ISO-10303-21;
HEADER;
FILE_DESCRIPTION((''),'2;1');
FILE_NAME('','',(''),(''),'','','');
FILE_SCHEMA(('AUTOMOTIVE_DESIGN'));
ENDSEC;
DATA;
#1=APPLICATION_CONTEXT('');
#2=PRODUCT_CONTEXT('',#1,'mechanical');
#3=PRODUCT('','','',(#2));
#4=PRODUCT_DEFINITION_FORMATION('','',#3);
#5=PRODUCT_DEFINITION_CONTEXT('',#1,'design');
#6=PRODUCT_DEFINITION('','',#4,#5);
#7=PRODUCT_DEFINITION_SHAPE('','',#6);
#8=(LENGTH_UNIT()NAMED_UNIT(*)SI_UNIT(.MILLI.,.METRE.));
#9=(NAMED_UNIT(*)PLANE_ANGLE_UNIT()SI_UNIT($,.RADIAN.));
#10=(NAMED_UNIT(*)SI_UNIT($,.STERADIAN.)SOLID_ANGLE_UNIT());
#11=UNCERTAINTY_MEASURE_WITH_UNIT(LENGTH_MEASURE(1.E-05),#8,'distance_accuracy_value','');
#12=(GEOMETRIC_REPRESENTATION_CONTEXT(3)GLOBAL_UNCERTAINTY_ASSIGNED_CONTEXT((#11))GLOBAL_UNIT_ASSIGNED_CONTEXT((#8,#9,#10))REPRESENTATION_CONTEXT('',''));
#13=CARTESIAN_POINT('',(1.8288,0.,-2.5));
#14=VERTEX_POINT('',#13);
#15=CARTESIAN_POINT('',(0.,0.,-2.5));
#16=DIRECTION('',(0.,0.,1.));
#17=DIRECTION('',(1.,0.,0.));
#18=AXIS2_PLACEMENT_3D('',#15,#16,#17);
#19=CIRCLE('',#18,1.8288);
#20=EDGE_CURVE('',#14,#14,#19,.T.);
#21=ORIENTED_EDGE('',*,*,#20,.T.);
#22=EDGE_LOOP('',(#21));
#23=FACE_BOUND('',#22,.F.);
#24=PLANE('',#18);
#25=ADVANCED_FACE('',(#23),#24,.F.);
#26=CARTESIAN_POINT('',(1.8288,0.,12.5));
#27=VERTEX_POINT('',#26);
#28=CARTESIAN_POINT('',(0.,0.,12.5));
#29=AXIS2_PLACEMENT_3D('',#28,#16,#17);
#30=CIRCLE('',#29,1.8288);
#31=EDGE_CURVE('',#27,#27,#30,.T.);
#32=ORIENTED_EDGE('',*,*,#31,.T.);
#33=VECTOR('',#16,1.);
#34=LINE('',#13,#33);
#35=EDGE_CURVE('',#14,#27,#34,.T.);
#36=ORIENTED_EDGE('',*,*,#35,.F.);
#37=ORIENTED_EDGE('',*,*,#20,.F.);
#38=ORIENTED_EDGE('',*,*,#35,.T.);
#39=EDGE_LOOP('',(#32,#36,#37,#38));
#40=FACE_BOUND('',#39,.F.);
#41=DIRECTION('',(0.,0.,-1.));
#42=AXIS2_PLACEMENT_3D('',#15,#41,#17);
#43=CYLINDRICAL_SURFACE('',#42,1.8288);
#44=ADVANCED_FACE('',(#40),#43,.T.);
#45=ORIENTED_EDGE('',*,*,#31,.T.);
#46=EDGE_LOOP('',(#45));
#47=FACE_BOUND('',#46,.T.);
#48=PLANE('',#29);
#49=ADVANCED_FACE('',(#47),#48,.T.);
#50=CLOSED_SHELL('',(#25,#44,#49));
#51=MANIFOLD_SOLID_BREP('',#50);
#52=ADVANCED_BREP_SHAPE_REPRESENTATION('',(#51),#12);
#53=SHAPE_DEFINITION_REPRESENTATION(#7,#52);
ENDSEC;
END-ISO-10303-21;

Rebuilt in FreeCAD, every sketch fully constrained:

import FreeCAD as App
import Part
import Sketcher
Q = App.Units.Quantity

doc = App.newDocument("Part")
body = doc.addObject("PartDesign::Body", "Body")

# Sketch on XY plane
sketch1 = body.newObject("Sketcher::SketchObject", "Sketch")
sketch1.AttachmentSupport = (doc.getObject("XY_Plane"), [""])
sketch1.MapMode = "FlatFace"
sketch1.AttachmentOffset = App.Placement(App.Vector(0, 0, -2.5), App.Rotation())
sketch1.addGeometry(Part.Circle(App.Vector(0, 0, 0), App.Vector(0, 0, 1), 1.8), False)
sketch1.addConstraint(Sketcher.Constraint("Coincident", 0, 3, -1, 1))
sketch1.addConstraint(Sketcher.Constraint("Diameter", 0, Q("3.6576 mm")))
pad1 = body.newObject("PartDesign::Pad", "Pad")
pad1.Profile = sketch1
pad1.Length = 15

doc.recompute()
